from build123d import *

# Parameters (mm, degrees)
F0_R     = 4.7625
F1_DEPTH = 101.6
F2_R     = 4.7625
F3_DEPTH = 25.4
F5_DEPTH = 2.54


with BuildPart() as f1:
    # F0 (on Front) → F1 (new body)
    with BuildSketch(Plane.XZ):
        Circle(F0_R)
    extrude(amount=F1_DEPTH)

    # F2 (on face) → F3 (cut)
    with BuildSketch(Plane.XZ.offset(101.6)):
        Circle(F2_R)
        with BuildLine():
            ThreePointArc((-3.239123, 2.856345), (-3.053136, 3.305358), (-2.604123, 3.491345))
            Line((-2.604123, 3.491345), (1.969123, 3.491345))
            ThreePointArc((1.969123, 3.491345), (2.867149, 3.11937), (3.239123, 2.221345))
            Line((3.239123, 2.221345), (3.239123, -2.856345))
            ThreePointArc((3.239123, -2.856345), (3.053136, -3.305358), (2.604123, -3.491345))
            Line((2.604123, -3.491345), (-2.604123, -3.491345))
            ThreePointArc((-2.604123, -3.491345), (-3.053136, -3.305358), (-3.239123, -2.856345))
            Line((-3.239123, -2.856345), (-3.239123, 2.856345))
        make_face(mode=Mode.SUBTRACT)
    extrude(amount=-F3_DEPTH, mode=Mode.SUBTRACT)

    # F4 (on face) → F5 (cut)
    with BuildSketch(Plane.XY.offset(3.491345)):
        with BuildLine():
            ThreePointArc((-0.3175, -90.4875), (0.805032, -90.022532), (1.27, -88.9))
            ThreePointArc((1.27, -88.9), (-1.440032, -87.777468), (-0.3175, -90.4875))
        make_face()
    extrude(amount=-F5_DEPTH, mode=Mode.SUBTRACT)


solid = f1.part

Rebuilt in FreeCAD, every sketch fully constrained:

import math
import FreeCAD as App
import Part
import Sketcher
Q = App.Units.Quantity

doc = App.newDocument("Part")
body = doc.addObject("PartDesign::Body", "Body")

sketch1 = body.newObject("Sketcher::SketchObject", "Sketch")
sketch1.AttachmentSupport = (doc.getObject("XZ_Plane"), [""])
sketch1.MapMode = "FlatFace"
sketch1.addGeometry(Part.Circle(App.Vector(0, 0, 0), App.Vector(0, 0, 1), 4.8), False)
sketch1.addConstraint([
    Sketcher.Constraint("Coincident", 0, 3, -1, 1),
    Sketcher.Constraint("Diameter", 0, Q("0.375 in")),
])
pad1 = body.newObject("PartDesign::Pad", "Pad")
pad1.Profile = sketch1
pad1.Length = Q("4 in")

sketch2 = body.newObject("Sketcher::SketchObject", "Sketch001")
sketch2.AttachmentSupport = (doc.getObject("XZ_Plane"), [""])
sketch2.MapMode = "FlatFace"
sketch2.AttachmentOffset = App.Placement(App.Vector(0, 0, 4 * 25.4), App.Rotation())
sketch2.addGeometry([
    Part.Circle(App.Vector(0, 0, 0), App.Vector(0, 0, 1), 4.8),
    Part.LineSegment(App.Vector(-3.2, -2.9, 0), App.Vector(-3.2, 2.9, 0)),
    Part.ArcOfCircle(Part.Circle(App.Vector(-2.6, 2.9, 0), App.Vector(0, 0, 1), 0.6), math.radians(90), math.radians(180)),
    Part.LineSegment(App.Vector(-2.6, 3.5, 0), App.Vector(2, 3.5, 0)),
    Part.ArcOfCircle(Part.Circle(App.Vector(2, 2.2, 0), App.Vector(0, 0, 1), 1.3), math.radians(0), math.radians(90)),
    Part.LineSegment(App.Vector(3.2, 2.2, 0), App.Vector(3.2, -2.9, 0)),
    Part.ArcOfCircle(Part.Circle(App.Vector(2.6, -2.9, 0), App.Vector(0, 0, 1), 0.6), math.radians(-90), math.radians(0)),
    Part.LineSegment(App.Vector(2.6, -3.5, 0), App.Vector(-2.6, -3.5, 0)),
    Part.ArcOfCircle(Part.Circle(App.Vector(-2.6, -2.9, 0), App.Vector(0, 0, 1), 0.6), math.radians(180), math.radians(270)),
], False)
sketch2.addConstraint([
    Sketcher.Constraint("Tangent", 1, 2, 2, 2),
    Sketcher.Constraint("Tangent", 2, 1, 3, 1),
    Sketcher.Constraint("Tangent", 3, 2, 4, 2),
    Sketcher.Constraint("Tangent", 4, 1, 5, 1),
    Sketcher.Constraint("Tangent", 5, 2, 6, 2),
    Sketcher.Constraint("Tangent", 6, 1, 7, 1),
    Sketcher.Constraint("Tangent", 7, 2, 8, 2),
    Sketcher.Constraint("Tangent", 8, 1, 1, 1),
    Sketcher.Constraint("Vertical", 1),
    Sketcher.Constraint("Horizontal", 3),
    Sketcher.Constraint("Vertical", 5),
    Sketcher.Constraint("Horizontal", 7),
    Sketcher.Constraint("Coincident", 0, 3, -1, 1),
    Sketcher.Constraint("Equal", 2, 6),
    Sketcher.Constraint("Equal", 6, 8),
    Sketcher.Constraint("Symmetric", 2, 3, 6, 3, -1, 1),
    Sketcher.Constraint("Radius", 4, Q("0.05 in")),
    Sketcher.Constraint("Diameter", 0, Q("0.375 in")),
    Sketcher.Constraint("Radius", 2, Q("0.025 in")),
    Sketcher.Constraint("DistanceY", 1, 1, 1, 2, 5.71269),
    Sketcher.Constraint("DistanceX", 3, 1, 3, 2, 4.573246),
])
pocket1 = body.newObject("PartDesign::Pocket", "Pocket")
pocket1.Profile = sketch2
pocket1.Length = Q("1 in")

sketch3 = body.newObject("Sketcher::SketchObject", "Sketch002")
sketch3.AttachmentSupport = (doc.getObject("XY_Plane"), [""])
sketch3.MapMode = "FlatFace"
sketch3.AttachmentOffset = App.Placement(App.Vector(0, 0, 3.491345), App.Rotation())
sketch3.addGeometry([
    Part.ArcOfCircle(Part.Circle(App.Vector(-0.3, -88.9, 0), App.Vector(0, 0, 1), 1.6), math.radians(-90), math.radians(0)),
    Part.ArcOfCircle(Part.Circle(App.Vector(-0.3, -88.9, 0), App.Vector(0, 0, 1), 1.6), math.radians(0), math.radians(270)),
], False)
sketch3.addConstraint([
    Sketcher.Constraint("Tangent", 0, 1, 1, 2),
    Sketcher.Constraint("Coincident", 1, 1, 0, 2),
    Sketcher.Constraint("Horizontal", 0, 3, 1, 1),
    Sketcher.Constraint("Vertical", 1, 3, 0, 1),
    Sketcher.Constraint("Radius", 0, Q("0.0625 in")),
    Sketcher.Constraint("DistanceY", 0, 3, -1, 1, Q("3.5 in")),
    Sketcher.Constraint("DistanceX", -1, 1, 1, 1, Q("0.05 in")),
])
pocket2 = body.newObject("PartDesign::Pocket", "Pocket001")
pocket2.Profile = sketch3
pocket2.Length = Q("0.1 in")

doc.recompute()
